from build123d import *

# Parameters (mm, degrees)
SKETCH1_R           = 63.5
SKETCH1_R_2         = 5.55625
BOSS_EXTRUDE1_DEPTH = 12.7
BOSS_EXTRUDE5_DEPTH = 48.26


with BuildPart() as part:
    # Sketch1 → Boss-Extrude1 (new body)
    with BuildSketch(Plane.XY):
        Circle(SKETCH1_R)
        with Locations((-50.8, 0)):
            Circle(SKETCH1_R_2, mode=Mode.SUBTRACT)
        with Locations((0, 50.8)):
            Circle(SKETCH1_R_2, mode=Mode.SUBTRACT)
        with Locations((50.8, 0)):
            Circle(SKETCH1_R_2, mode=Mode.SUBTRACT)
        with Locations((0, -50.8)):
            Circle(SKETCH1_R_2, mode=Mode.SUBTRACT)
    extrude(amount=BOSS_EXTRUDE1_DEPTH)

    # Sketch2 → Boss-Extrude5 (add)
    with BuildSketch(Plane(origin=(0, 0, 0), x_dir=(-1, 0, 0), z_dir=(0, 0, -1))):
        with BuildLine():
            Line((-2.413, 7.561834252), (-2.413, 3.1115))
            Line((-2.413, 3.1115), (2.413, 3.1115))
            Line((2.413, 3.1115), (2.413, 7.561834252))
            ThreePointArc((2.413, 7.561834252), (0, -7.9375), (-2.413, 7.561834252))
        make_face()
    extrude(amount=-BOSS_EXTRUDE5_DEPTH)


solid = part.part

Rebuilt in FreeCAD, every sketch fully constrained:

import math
import FreeCAD as App
import Part
import Sketcher
from FreeCAD import Vector
Q = App.Units.Quantity

doc = App.newDocument("Part")
body = doc.addObject("PartDesign::Body", "Body")

# Sketch on XY plane
sketch1 = body.newObject("Sketcher::SketchObject", "Sketch")
sketch1.AttachmentSupport = (doc.getObject("XY_Plane"), [""])
sketch1.MapMode = "FlatFace"
sketch1.addGeometry(Part.Circle(Vector(0, 0, 0), Vector(0, 0, 1), 63.5), False)
sketch1.addGeometry(Part.Circle(Vector(0, -50.8, 0), Vector(0, 0, 1), 5.55625), False)
sketch1.addGeometry(Part.Circle(Vector(-50.8, 0, 0), Vector(0, 0, 1), 5.55625), False)
sketch1.addGeometry(Part.Circle(Vector(50.8, 0, 0), Vector(0, 0, 1), 5.55625), False)
sketch1.addGeometry(Part.Circle(Vector(0, 50.8, 0), Vector(0, 0, 1), 5.55625), False)
sketch1.addConstraint(Sketcher.Constraint("Coincident", 0, 3, -1, 1))
sketch1.addConstraint(Sketcher.Constraint("Equal", 1, 2))
sketch1.addConstraint(Sketcher.Constraint("Equal", 2, 3))
sketch1.addConstraint(Sketcher.Constraint("Equal", 3, 4))
sketch1.addConstraint(Sketcher.Constraint("Symmetric", 2, 3, 3, 3, -1, 1))
sketch1.addConstraint(Sketcher.Constraint("Symmetric", 1, 3, 4, 3, -1, 1))
sketch1.addConstraint(Sketcher.Constraint("PointOnObject", 1, 3, -2))
sketch1.addConstraint(Sketcher.Constraint("PointOnObject", 2, 3, -1))
sketch1.addConstraint(Sketcher.Constraint("Diameter", 0, Q("5 in")))
sketch1.addConstraint(Sketcher.Constraint("Diameter", 1, Q("0.4375 in")))
sketch1.addConstraint(Sketcher.Constraint("DistanceY", 1, 3, -1, 1, Q("2 in")))
sketch1.addConstraint(Sketcher.Constraint("DistanceX", 2, 3, -1, 1, Q("2 in")))
pad1 = body.newObject("PartDesign::Pad", "Pad")
pad1.Profile = sketch1
pad1.Length = Q("0.5 in")

# Sketch on XY plane
sketch2 = body.newObject("Sketcher::SketchObject", "Sketch001")
sketch2.AttachmentSupport = (doc.getObject("XY_Plane"), [""])
sketch2.MapMode = "FlatFace"
sketch2.addGeometry(Part.LineSegment(Vector(2.413, 3.1115, 0), Vector(2.413, 7.561834, 0)), False)
sketch2.addGeometry(Part.ArcOfCircle(Part.Circle(Vector(0, 0, 0), Vector(0, 0, 1), 7.9375), math.radians(107.698012), math.radians(432.301988)), False)
sketch2.addGeometry(Part.LineSegment(Vector(-2.413, 7.561834, 0), Vector(-2.413, 3.1115, 0)), False)
sketch2.addGeometry(Part.LineSegment(Vector(-2.413, 3.1115, 0), Vector(2.413, 3.1115, 0)), False)
sketch2.addConstraint(Sketcher.Constraint("Coincident", 0, 2, 1, 2))
sketch2.addConstraint(Sketcher.Constraint("Coincident", 1, 1, 2, 1))
sketch2.addConstraint(Sketcher.Constraint("Coincident", 2, 2, 3, 1))
sketch2.addConstraint(Sketcher.Constraint("Coincident", 3, 2, 0, 1))
sketch2.addConstraint(Sketcher.Constraint("Vertical", 0))
sketch2.addConstraint(Sketcher.Constraint("Vertical", 2))
sketch2.addConstraint(Sketcher.Constraint("Horizontal", 3))
sketch2.addConstraint(Sketcher.Constraint("Coincident", 1, 3, -1, 1))
sketch2.addConstraint(Sketcher.Constraint("Horizontal", 0, 2, 1, 1))
sketch2.addConstraint(Sketcher.Constraint("Radius", 1, Q("0.3125 in")))
sketch2.addConstraint(Sketcher.Constraint("DistanceX", 3, 1, 3, 2, Q("0.19 in")))
sketch2.addConstraint(Sketcher.Constraint("DistanceY", -1, 1, 2, 2, Q("0.1225 in")))
pad2 = body.newObject("PartDesign::Pad", "Pad001")
pad2.Profile = sketch2
pad2.Length = Q("1.9 in")

doc.recompute()
